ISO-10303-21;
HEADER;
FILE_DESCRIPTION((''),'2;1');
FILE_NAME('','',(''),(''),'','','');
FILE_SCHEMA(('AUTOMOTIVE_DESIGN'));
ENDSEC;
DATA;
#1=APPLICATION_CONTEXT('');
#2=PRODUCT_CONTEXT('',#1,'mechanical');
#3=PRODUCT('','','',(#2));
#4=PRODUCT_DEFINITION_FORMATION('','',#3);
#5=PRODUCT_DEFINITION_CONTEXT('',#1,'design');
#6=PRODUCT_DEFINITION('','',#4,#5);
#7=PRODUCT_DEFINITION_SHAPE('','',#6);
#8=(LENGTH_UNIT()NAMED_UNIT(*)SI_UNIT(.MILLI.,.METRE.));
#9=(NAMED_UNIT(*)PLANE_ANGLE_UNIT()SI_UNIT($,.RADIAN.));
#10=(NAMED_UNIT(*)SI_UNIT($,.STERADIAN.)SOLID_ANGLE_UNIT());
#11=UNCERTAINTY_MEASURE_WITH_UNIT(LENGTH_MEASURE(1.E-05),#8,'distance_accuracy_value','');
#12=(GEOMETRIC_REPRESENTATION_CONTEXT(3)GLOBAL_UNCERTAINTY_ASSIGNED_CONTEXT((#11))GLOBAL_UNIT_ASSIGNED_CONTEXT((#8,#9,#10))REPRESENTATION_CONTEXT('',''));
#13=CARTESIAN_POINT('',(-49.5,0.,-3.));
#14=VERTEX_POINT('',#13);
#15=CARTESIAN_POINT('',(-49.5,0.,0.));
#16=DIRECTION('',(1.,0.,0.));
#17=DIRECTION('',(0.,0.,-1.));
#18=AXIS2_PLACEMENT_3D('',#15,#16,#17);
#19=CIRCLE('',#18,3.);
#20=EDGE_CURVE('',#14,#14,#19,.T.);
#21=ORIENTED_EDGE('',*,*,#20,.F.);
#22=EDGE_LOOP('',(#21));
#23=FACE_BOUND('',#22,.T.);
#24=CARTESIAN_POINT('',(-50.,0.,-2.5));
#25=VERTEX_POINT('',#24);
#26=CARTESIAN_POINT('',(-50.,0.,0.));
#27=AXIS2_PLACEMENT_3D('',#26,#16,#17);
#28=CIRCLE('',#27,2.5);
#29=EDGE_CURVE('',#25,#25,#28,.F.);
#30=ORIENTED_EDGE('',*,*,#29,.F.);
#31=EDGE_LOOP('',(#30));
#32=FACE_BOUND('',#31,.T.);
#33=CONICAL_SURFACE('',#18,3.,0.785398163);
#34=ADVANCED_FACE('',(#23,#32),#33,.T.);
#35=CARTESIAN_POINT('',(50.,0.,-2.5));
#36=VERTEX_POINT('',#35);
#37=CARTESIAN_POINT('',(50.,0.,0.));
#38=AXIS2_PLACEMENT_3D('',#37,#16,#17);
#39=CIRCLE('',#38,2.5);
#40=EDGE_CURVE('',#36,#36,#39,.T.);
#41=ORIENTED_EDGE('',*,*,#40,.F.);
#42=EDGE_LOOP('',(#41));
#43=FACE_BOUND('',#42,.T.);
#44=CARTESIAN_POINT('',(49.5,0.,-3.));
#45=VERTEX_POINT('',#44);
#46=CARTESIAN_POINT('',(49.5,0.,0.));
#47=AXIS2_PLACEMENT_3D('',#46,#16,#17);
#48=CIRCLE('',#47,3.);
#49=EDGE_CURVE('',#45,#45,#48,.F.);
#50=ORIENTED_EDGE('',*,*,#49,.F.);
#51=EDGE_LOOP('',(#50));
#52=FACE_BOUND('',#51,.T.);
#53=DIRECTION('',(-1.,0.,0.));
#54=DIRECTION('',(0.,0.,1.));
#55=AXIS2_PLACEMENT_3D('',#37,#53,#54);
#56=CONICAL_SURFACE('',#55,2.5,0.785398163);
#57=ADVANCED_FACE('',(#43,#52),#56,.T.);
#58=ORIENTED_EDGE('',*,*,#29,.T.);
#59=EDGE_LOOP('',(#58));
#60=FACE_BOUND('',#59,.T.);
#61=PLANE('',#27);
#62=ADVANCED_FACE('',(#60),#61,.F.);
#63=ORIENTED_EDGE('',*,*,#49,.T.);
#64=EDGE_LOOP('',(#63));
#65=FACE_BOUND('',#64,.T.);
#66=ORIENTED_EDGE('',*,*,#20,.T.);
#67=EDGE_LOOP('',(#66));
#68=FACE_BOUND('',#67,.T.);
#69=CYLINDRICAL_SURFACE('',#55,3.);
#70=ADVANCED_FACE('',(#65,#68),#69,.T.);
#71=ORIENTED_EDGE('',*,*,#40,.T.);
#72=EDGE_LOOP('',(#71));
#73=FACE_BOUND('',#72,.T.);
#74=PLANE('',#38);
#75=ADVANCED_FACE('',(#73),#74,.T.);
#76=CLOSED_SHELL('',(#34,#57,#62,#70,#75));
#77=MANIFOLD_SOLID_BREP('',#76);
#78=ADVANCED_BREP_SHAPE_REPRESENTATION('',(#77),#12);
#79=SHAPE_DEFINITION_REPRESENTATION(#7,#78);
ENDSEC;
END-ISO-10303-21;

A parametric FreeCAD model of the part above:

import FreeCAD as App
import Part
import Sketcher

V = App.Vector


def edges_at(feature, points):
    """Names of the edges that pass closest to the given points."""
    edges = feature.Shape.Edges
    near = lambda p: min(range(len(edges)), key=lambda i: edges[i].distToShape(Part.Vertex(*p))[0])
    return sorted({f"Edge{near(p) + 1}" for p in points})

doc = App.newDocument("Part")
body = doc.addObject("PartDesign::Body", "Body")

sketch1 = body.newObject("Sketcher::SketchObject", "Sketch")
sketch1.AttachmentSupport = (doc.getObject("YZ_Plane"), [""])
sketch1.MapMode = "FlatFace"
sketch1.addGeometry(Part.Circle(V(0, 0, 0), V(0, 0, 1), 3), False)
sketch1.addConstraint(Sketcher.Constraint("Coincident", 0, 3, -1, 1))
sketch1.addConstraint(Sketcher.Constraint("Diameter", 0, 6.0))
pad1 = body.newObject("PartDesign::Pad", "Pad")
pad1.Profile = sketch1
pad1.Length = 100
pad1.Midplane = True
doc.recompute()

chamfer = body.newObject("PartDesign::Chamfer", "Chamfer")
chamfer.Base = (pad1, edges_at(pad1, [(-50, 0, 3), (50, 0, 3)]))
chamfer.Size = 0.5

doc.recompute()
